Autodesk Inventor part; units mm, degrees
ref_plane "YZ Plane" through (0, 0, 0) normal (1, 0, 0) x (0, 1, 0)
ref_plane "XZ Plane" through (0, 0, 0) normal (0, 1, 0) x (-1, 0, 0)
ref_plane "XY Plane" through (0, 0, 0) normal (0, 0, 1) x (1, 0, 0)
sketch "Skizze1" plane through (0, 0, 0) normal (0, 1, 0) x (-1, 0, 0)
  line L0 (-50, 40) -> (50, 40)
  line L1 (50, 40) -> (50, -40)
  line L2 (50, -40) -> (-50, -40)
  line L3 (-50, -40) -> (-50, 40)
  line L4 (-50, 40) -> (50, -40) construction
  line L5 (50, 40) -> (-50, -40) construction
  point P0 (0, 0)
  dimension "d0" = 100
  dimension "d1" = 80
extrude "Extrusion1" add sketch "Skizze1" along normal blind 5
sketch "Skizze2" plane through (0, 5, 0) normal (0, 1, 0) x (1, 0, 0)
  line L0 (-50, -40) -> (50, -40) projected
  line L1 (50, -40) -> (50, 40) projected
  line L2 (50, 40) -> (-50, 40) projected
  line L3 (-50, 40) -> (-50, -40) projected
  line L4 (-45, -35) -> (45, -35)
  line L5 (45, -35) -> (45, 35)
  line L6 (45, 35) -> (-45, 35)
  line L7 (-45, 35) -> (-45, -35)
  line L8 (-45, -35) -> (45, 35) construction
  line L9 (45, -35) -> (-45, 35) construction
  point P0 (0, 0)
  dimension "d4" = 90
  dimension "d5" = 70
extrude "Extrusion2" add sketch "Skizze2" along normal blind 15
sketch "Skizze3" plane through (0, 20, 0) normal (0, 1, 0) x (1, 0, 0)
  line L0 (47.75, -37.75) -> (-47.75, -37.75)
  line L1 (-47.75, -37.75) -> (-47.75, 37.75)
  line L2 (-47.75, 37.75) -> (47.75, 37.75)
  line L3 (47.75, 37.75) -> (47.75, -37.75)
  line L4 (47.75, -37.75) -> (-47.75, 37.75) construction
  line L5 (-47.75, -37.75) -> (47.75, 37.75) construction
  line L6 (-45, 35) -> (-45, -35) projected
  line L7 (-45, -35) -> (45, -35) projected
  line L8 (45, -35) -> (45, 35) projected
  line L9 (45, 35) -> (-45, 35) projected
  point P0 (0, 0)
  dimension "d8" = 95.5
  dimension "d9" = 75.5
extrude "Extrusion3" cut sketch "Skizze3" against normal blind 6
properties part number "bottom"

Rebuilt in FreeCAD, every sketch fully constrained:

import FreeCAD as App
import Part
import Sketcher
Q = App.Units.Quantity

doc = App.newDocument("Part")
body = doc.addObject("PartDesign::Body", "Body")

sketch1 = doc.addObject("Sketcher::SketchObject", "Sketch")
body.addObject(sketch1)
sketch1.AttachmentSupport = (doc.XZ_Plane, [""])
sketch1.MapMode = "FlatFace"
sketch1.addGeometry([
    Part.LineSegment(App.Vector(-50, 40, 0), App.Vector(50, 40, 0)),
    Part.LineSegment(App.Vector(50, 40, 0), App.Vector(50, -40, 0)),
    Part.LineSegment(App.Vector(50, -40, 0), App.Vector(-50, -40, 0)),
    Part.LineSegment(App.Vector(-50, -40, 0), App.Vector(-50, 40, 0)),
], False)
sketch1.addConstraint([
    Sketcher.Constraint("Coincident", 0, 2, 1, 1),
    Sketcher.Constraint("Coincident", 1, 2, 2, 1),
    Sketcher.Constraint("Coincident", 2, 2, 3, 1),
    Sketcher.Constraint("Coincident", 3, 2, 0, 1),
    Sketcher.Constraint("Horizontal", 0),
    Sketcher.Constraint("Vertical", 1),
    Sketcher.Constraint("Horizontal", 2),
    Sketcher.Constraint("Vertical", 3),
    Sketcher.Constraint("Symmetric", 0, 2, 2, 2, -1, 1),
    Sketcher.Constraint("DistanceX", 0, 1, 0, 2, Q("100 mm")),
    Sketcher.Constraint("DistanceY", 1, 2, 1, 1, Q("80 mm")),
])
pad1 = doc.addObject("PartDesign::Pad", "Pad")
body.addObject(pad1)
pad1.Profile = sketch1
pad1.Length = 5
pad1.Reversed = True

sketch2 = doc.addObject("Sketcher::SketchObject", "Sketch001")
body.addObject(sketch2)
sketch2.AttachmentSupport = (doc.XZ_Plane, [""])
sketch2.MapMode = "FlatFace"
sketch2.AttachmentOffset = App.Placement(App.Vector(0, 0, -5), App.Rotation())
sketch2.addGeometry([
    Part.LineSegment(App.Vector(-50, -40, 0), App.Vector(-50, 40, 0)),
    Part.LineSegment(App.Vector(-50, 40, 0), App.Vector(50, 40, 0)),
    Part.LineSegment(App.Vector(50, 40, 0), App.Vector(50, -40, 0)),
    Part.LineSegment(App.Vector(50, -40, 0), App.Vector(-50, -40, 0)),
    Part.LineSegment(App.Vector(45, 35, 0), App.Vector(-45, 35, 0)),
    Part.LineSegment(App.Vector(-45, 35, 0), App.Vector(-45, -35, 0)),
    Part.LineSegment(App.Vector(-45, -35, 0), App.Vector(45, -35, 0)),
    Part.LineSegment(App.Vector(45, -35, 0), App.Vector(45, 35, 0)),
], False)
sketch2.addConstraint([
    Sketcher.Constraint("Coincident", 0, 2, 1, 1),
    Sketcher.Constraint("Coincident", 1, 2, 2, 1),
    Sketcher.Constraint("Coincident", 2, 2, 3, 1),
    Sketcher.Constraint("Coincident", 3, 2, 0, 1),
    Sketcher.Constraint("Coincident", 4, 2, 5, 1),
    Sketcher.Constraint("Coincident", 5, 2, 6, 1),
    Sketcher.Constraint("Coincident", 6, 2, 7, 1),
    Sketcher.Constraint("Coincident", 7, 2, 4, 1),
    Sketcher.Constraint("Vertical", 0),
    Sketcher.Constraint("Horizontal", 1),
    Sketcher.Constraint("Vertical", 2),
    Sketcher.Constraint("Horizontal", 3),
    Sketcher.Constraint("Horizontal", 4),
    Sketcher.Constraint("Vertical", 5),
    Sketcher.Constraint("Horizontal", 6),
    Sketcher.Constraint("Vertical", 7),
    Sketcher.Constraint("Symmetric", 0, 2, 2, 2, -1, 1),
    Sketcher.Constraint("Symmetric", 4, 2, 6, 2, -1, 1),
    Sketcher.Constraint("DistanceX", 4, 2, 4, 1, Q("90 mm")),
    Sketcher.Constraint("DistanceY", 5, 2, 5, 1, Q("70 mm")),
    Sketcher.Constraint("DistanceX", 1, 1, 1, 2, Q("100 mm")),
    Sketcher.Constraint("DistanceY", 0, 1, 0, 2, Q("80 mm")),
])
pad2 = doc.addObject("PartDesign::Pad", "Pad001")
body.addObject(pad2)
pad2.Profile = sketch2
pad2.Length = 15
pad2.Reversed = True

sketch3 = doc.addObject("Sketcher::SketchObject", "Sketch002")
body.addObject(sketch3)
sketch3.AttachmentSupport = (doc.XZ_Plane, [""])
sketch3.MapMode = "FlatFace"
sketch3.AttachmentOffset = App.Placement(App.Vector(0, 0, -20), App.Rotation())
sketch3.addGeometry([
    Part.LineSegment(App.Vector(-47.75, 37.75, 0), App.Vector(47.75, 37.75, 0)),
    Part.LineSegment(App.Vector(47.75, 37.75, 0), App.Vector(47.75, -37.75, 0)),
    Part.LineSegment(App.Vector(47.75, -37.75, 0), App.Vector(-47.75, -37.75, 0)),
    Part.LineSegment(App.Vector(-47.75, -37.75, 0), App.Vector(-47.75, 37.75, 0)),
    Part.LineSegment(App.Vector(-45, 35, 0), App.Vector(-45, -35, 0)),
    Part.LineSegment(App.Vector(-45, -35, 0), App.Vector(45, -35, 0)),
    Part.LineSegment(App.Vector(45, -35, 0), App.Vector(45, 35, 0)),
    Part.LineSegment(App.Vector(45, 35, 0), App.Vector(-45, 35, 0)),
], False)
sketch3.addConstraint([
    Sketcher.Constraint("Coincident", 0, 2, 1, 1),
    Sketcher.Constraint("Coincident", 1, 2, 2, 1),
    Sketcher.Constraint("Coincident", 2, 2, 3, 1),
    Sketcher.Constraint("Coincident", 3, 2, 0, 1),
    Sketcher.Constraint("Coincident", 4, 2, 5, 1),
    Sketcher.Constraint("Coincident", 5, 2, 6, 1),
    Sketcher.Constraint("Coincident", 6, 2, 7, 1),
    Sketcher.Constraint("Coincident", 7, 2, 4, 1),
    Sketcher.Constraint("Horizontal", 0),
    Sketcher.Constraint("Vertical", 1),
    Sketcher.Constraint("Horizontal", 2),
    Sketcher.Constraint("Vertical", 3),
    Sketcher.Constraint("Vertical", 4),
    Sketcher.Constraint("Horizontal", 5),
    Sketcher.Constraint("Vertical", 6),
    Sketcher.Constraint("Horizontal", 7),
    Sketcher.Constraint("Symmetric", 0, 2, 2, 2, -1, 1),
    Sketcher.Constraint("Symmetric", 4, 2, 6, 2, -1, 1),
    Sketcher.Constraint("DistanceX", 0, 1, 0, 2, Q("95.5 mm")),
    Sketcher.Constraint("DistanceY", 1, 2, 1, 1, Q("75.5 mm")),
    Sketcher.Constraint("DistanceX", 5, 1, 5, 2, Q("90 mm")),
    Sketcher.Constraint("DistanceY", 4, 2, 4, 1, Q("70 mm")),
])
pocket1 = doc.addObject("PartDesign::Pocket", "Pocket")
body.addObject(pocket1)
pocket1.Profile = sketch3
pocket1.Length = 6
pocket1.Reversed = True

doc.recompute()
